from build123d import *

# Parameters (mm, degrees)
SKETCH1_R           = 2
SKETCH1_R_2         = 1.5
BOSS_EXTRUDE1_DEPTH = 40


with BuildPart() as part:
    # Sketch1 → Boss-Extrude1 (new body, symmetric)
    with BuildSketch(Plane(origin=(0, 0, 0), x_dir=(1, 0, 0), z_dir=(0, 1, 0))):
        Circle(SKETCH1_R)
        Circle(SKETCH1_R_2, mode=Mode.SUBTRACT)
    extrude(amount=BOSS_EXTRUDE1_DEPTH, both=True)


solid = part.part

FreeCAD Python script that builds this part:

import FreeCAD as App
import Part
import Sketcher

V = App.Vector
Q = App.Units.Quantity

doc = App.newDocument("Part")
body = doc.addObject("PartDesign::Body", "Body")

sketch1 = doc.addObject("Sketcher::SketchObject", "Sketch")
body.addObject(sketch1)
sketch1.AttachmentSupport = (doc.XZ_Plane, [""])
sketch1.MapMode = "FlatFace"
sketch1.addGeometry([
    Part.Circle(V(0, 0, 0), V(0, 0, 1), 2),
    Part.Circle(V(0, 0, 0), V(0, 0, 1), 1.5),
], False)
sketch1.addConstraint([
    Sketcher.Constraint("Coincident", 0, 3, -1, 1),
    Sketcher.Constraint("Coincident", 1, 3, -1, 1),
    Sketcher.Constraint("Diameter", 0, Q("4 mm")),
    Sketcher.Constraint("Diameter", 1, Q("3 mm")),
])
pad1 = doc.addObject("PartDesign::Pad", "Pad")
body.addObject(pad1)
pad1.Profile = sketch1
pad1.Length = 80
pad1.Midplane = True

doc.recompute()
